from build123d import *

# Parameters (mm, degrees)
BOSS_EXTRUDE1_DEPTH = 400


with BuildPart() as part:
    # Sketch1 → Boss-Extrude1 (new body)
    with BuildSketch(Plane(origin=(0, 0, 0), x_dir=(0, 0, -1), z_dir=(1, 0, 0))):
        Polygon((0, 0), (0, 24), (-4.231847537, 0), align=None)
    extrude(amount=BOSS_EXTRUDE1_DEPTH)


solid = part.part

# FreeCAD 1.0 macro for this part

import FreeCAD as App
import Part
import Sketcher
from FreeCAD import Vector
Q = App.Units.Quantity

doc = App.newDocument("Part")
body = doc.addObject("PartDesign::Body", "Body")

# Sketch on YZ plane
sketch1 = doc.addObject("Sketcher::SketchObject", "Sketch")
body.addObject(sketch1)
sketch1.AttachmentSupport = (doc.YZ_Plane, [""])
sketch1.MapMode = "FlatFace"
sketch1.addGeometry(Part.LineSegment(Vector(0, 0, 0), Vector(24, 0, 0)), False)
sketch1.addGeometry(Part.LineSegment(Vector(24, 0, 0), Vector(0, 4.2, 0)), False)
sketch1.addGeometry(Part.LineSegment(Vector(0, 4.2, 0), Vector(0, 0, 0)), False)
sketch1.addConstraint(Sketcher.Constraint("Coincident", 0, 2, 1, 1))
sketch1.addConstraint(Sketcher.Constraint("Coincident", 1, 2, 2, 1))
sketch1.addConstraint(Sketcher.Constraint("Coincident", 2, 2, 0, 1))
sketch1.addConstraint(Sketcher.Constraint("Horizontal", 0))
sketch1.addConstraint(Sketcher.Constraint("Vertical", 2))
sketch1.addConstraint(Sketcher.Constraint("Coincident", 2, 2, -1, 1))
sketch1.addConstraint(Sketcher.Constraint("DistanceX", 0, 1, 0, 2, Q("24 mm")))
sketch1.addConstraint(Sketcher.Constraint("Angle", 1, Q("170 deg")))
pad1 = doc.addObject("PartDesign::Pad", "Pad")
body.addObject(pad1)
pad1.Profile = sketch1
pad1.Length = 400

doc.recompute()
